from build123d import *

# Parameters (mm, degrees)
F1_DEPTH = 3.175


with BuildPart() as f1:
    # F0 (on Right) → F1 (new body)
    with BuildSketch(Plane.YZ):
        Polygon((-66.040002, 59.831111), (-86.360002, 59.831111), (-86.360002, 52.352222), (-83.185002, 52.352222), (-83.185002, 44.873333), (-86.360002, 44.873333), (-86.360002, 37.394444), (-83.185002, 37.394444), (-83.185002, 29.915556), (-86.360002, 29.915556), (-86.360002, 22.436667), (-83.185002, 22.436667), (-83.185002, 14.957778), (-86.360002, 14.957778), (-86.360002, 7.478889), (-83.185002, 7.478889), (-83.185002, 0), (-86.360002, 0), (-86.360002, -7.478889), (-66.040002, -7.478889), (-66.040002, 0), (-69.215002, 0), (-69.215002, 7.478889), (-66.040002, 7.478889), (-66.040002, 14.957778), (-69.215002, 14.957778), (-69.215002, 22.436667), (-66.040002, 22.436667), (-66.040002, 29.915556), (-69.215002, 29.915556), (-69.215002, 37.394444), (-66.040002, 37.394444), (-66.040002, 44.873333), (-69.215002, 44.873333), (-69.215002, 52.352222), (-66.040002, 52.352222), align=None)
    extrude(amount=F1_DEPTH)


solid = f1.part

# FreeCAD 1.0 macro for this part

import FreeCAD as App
import Part
import Sketcher

V = App.Vector
Q = App.Units.Quantity


def add_polygon(sketch, points):
    """Adds a closed chain of lines whose ends are joined by coincident constraints."""
    first, n = sketch.GeometryCount, len(points)
    for a, b in zip(points, points[1:] + points[:1]):
        sketch.addGeometry(Part.LineSegment(App.Vector(*a, 0), App.Vector(*b, 0)), False)
    for i in range(n):
        sketch.addConstraint(Sketcher.Constraint("Coincident", first + i, 2, first + (i + 1) % n, 1))

doc = App.newDocument("Part")
body = doc.addObject("PartDesign::Body", "Body")

# Sketch on YZ plane
sketch1 = body.newObject("Sketcher::SketchObject", "Sketch")
sketch1.AttachmentSupport = (doc.getObject("YZ_Plane"), [""])
sketch1.MapMode = "FlatFace"
add_polygon(sketch1, [(-66, 59.8), (-86.4, 59.8), (-86.4, 52.4), (-83.2, 52.4), (-83.2, 44.9), (-86.4, 44.9), (-86.4, 37.4), (-83.2, 37.4), (-83.2, 29.9), (-86.4, 29.9), (-86.4, 22.4), (-83.2, 22.4), (-83.2, 15), (-86.4, 15), (-86.4, 7.5), (-83.2, 7.5), (-83.2, 0), (-86.4, 0), (-86.4, -7.5), (-66, -7.5), (-66, 0), (-69.2, 0), (-69.2, 7.5), (-66, 7.5), (-66, 15), (-69.2, 15), (-69.2, 22.4), (-66, 22.4), (-66, 29.9), (-69.2, 29.9), (-69.2, 37.4), (-66, 37.4), (-66, 44.9), (-69.2, 44.9), (-69.2, 52.4), (-66, 52.4)])  # lines 0-35
sketch1.addConstraint(Sketcher.Constraint("Horizontal", 0))
sketch1.addConstraint(Sketcher.Constraint("Vertical", 1))
sketch1.addConstraint(Sketcher.Constraint("Horizontal", 2))
sketch1.addConstraint(Sketcher.Constraint("Vertical", 3))
sketch1.addConstraint(Sketcher.Constraint("Horizontal", 4))
sketch1.addConstraint(Sketcher.Constraint("Vertical", 5))
sketch1.addConstraint(Sketcher.Constraint("Horizontal", 6))
sketch1.addConstraint(Sketcher.Constraint("Vertical", 7))
sketch1.addConstraint(Sketcher.Constraint("Horizontal", 8))
sketch1.addConstraint(Sketcher.Constraint("Vertical", 9))
sketch1.addConstraint(Sketcher.Constraint("Horizontal", 10))
sketch1.addConstraint(Sketcher.Constraint("Vertical", 11))
sketch1.addConstraint(Sketcher.Constraint("Horizontal", 12))
sketch1.addConstraint(Sketcher.Constraint("Vertical", 13))
sketch1.addConstraint(Sketcher.Constraint("Horizontal", 14))
sketch1.addConstraint(Sketcher.Constraint("Vertical", 15))
sketch1.addConstraint(Sketcher.Constraint("Horizontal", 16))
sketch1.addConstraint(Sketcher.Constraint("Vertical", 17))
sketch1.addConstraint(Sketcher.Constraint("Horizontal", 18))
sketch1.addConstraint(Sketcher.Constraint("Vertical", 19))
sketch1.addConstraint(Sketcher.Constraint("Horizontal", 20))
sketch1.addConstraint(Sketcher.Constraint("Vertical", 21))
sketch1.addConstraint(Sketcher.Constraint("Horizontal", 22))
sketch1.addConstraint(Sketcher.Constraint("Vertical", 23))
sketch1.addConstraint(Sketcher.Constraint("Horizontal", 24))
sketch1.addConstraint(Sketcher.Constraint("Vertical", 25))
sketch1.addConstraint(Sketcher.Constraint("Horizontal", 26))
sketch1.addConstraint(Sketcher.Constraint("Vertical", 27))
sketch1.addConstraint(Sketcher.Constraint("Horizontal", 28))
sketch1.addConstraint(Sketcher.Constraint("Vertical", 29))
sketch1.addConstraint(Sketcher.Constraint("Horizontal", 30))
sketch1.addConstraint(Sketcher.Constraint("Vertical", 31))
sketch1.addConstraint(Sketcher.Constraint("Horizontal", 32))
sketch1.addConstraint(Sketcher.Constraint("Vertical", 33))
sketch1.addConstraint(Sketcher.Constraint("Horizontal", 34))
sketch1.addConstraint(Sketcher.Constraint("Vertical", 35))
sketch1.addConstraint(Sketcher.Constraint("Symmetric", 13, 2, 17, 2, -1))
sketch1.addConstraint(Sketcher.Constraint("Symmetric", 18, 2, 22, 2, -1))
sketch1.addConstraint(Sketcher.Constraint("PointOnObject", 15, 2, -1))
sketch1.addConstraint(Sketcher.Constraint("PointOnObject", 19, 2, -1))
sketch1.addConstraint(Sketcher.Constraint("Horizontal", 12, 2, 23, 2))
sketch1.addConstraint(Sketcher.Constraint("Horizontal", 10, 2, 25, 2))
sketch1.addConstraint(Sketcher.Constraint("Horizontal", 8, 2, 27, 2))
sketch1.addConstraint(Sketcher.Constraint("Horizontal", 6, 2, 29, 2))
sketch1.addConstraint(Sketcher.Constraint("Horizontal", 4, 2, 31, 2))
sketch1.addConstraint(Sketcher.Constraint("Horizontal", 2, 2, 33, 2))
sketch1.addConstraint(Sketcher.Constraint("Vertical", 1, 2, 4, 2))
sketch1.addConstraint(Sketcher.Constraint("Vertical", 3, 2, 6, 2))
sketch1.addConstraint(Sketcher.Constraint("Vertical", 5, 2, 8, 2))
sketch1.addConstraint(Sketcher.Constraint("Vertical", 7, 2, 10, 2))
sketch1.addConstraint(Sketcher.Constraint("Vertical", 9, 2, 12, 2))
sketch1.addConstraint(Sketcher.Constraint("Vertical", 11, 2, 14, 2))
sketch1.addConstraint(Sketcher.Constraint("Vertical", 21, 2, 24, 2))
sketch1.addConstraint(Sketcher.Constraint("Vertical", 23, 2, 26, 2))
sketch1.addConstraint(Sketcher.Constraint("Vertical", 25, 2, 28, 2))
sketch1.addConstraint(Sketcher.Constraint("Vertical", 27, 2, 30, 2))
sketch1.addConstraint(Sketcher.Constraint("Vertical", 29, 2, 32, 2))
sketch1.addConstraint(Sketcher.Constraint("Vertical", 31, 2, 34, 2))
sketch1.addConstraint(Sketcher.Constraint("Equal", 16, 20))
sketch1.addConstraint(Sketcher.Constraint("Equal", 1, 3))
sketch1.addConstraint(Sketcher.Constraint("Equal", 3, 5))
sketch1.addConstraint(Sketcher.Constraint("Equal", 5, 7))
sketch1.addConstraint(Sketcher.Constraint("Equal", 7, 9))
sketch1.addConstraint(Sketcher.Constraint("Equal", 9, 11))
sketch1.addConstraint(Sketcher.Constraint("Equal", 11, 13))
sketch1.addConstraint(Sketcher.Constraint("Equal", 13, 15))
sketch1.addConstraint(Sketcher.Constraint("DistanceX", 0, 2, 0, 1, Q("0.8 in")))
sketch1.addConstraint(Sketcher.Constraint("DistanceX", 0, 2, -1, 1, Q("3.4000001 in")))
sketch1.addConstraint(Sketcher.Constraint("DistanceX", 2, 1, 2, 2, Q("0.125 in")))
sketch1.addConstraint(Sketcher.Constraint("DistanceY", 1, 2, 1, 1, 7.478889))
pad1 = body.newObject("PartDesign::Pad", "Pad")
pad1.Profile = sketch1
pad1.Length = Q("0.125 in")

doc.recompute()
